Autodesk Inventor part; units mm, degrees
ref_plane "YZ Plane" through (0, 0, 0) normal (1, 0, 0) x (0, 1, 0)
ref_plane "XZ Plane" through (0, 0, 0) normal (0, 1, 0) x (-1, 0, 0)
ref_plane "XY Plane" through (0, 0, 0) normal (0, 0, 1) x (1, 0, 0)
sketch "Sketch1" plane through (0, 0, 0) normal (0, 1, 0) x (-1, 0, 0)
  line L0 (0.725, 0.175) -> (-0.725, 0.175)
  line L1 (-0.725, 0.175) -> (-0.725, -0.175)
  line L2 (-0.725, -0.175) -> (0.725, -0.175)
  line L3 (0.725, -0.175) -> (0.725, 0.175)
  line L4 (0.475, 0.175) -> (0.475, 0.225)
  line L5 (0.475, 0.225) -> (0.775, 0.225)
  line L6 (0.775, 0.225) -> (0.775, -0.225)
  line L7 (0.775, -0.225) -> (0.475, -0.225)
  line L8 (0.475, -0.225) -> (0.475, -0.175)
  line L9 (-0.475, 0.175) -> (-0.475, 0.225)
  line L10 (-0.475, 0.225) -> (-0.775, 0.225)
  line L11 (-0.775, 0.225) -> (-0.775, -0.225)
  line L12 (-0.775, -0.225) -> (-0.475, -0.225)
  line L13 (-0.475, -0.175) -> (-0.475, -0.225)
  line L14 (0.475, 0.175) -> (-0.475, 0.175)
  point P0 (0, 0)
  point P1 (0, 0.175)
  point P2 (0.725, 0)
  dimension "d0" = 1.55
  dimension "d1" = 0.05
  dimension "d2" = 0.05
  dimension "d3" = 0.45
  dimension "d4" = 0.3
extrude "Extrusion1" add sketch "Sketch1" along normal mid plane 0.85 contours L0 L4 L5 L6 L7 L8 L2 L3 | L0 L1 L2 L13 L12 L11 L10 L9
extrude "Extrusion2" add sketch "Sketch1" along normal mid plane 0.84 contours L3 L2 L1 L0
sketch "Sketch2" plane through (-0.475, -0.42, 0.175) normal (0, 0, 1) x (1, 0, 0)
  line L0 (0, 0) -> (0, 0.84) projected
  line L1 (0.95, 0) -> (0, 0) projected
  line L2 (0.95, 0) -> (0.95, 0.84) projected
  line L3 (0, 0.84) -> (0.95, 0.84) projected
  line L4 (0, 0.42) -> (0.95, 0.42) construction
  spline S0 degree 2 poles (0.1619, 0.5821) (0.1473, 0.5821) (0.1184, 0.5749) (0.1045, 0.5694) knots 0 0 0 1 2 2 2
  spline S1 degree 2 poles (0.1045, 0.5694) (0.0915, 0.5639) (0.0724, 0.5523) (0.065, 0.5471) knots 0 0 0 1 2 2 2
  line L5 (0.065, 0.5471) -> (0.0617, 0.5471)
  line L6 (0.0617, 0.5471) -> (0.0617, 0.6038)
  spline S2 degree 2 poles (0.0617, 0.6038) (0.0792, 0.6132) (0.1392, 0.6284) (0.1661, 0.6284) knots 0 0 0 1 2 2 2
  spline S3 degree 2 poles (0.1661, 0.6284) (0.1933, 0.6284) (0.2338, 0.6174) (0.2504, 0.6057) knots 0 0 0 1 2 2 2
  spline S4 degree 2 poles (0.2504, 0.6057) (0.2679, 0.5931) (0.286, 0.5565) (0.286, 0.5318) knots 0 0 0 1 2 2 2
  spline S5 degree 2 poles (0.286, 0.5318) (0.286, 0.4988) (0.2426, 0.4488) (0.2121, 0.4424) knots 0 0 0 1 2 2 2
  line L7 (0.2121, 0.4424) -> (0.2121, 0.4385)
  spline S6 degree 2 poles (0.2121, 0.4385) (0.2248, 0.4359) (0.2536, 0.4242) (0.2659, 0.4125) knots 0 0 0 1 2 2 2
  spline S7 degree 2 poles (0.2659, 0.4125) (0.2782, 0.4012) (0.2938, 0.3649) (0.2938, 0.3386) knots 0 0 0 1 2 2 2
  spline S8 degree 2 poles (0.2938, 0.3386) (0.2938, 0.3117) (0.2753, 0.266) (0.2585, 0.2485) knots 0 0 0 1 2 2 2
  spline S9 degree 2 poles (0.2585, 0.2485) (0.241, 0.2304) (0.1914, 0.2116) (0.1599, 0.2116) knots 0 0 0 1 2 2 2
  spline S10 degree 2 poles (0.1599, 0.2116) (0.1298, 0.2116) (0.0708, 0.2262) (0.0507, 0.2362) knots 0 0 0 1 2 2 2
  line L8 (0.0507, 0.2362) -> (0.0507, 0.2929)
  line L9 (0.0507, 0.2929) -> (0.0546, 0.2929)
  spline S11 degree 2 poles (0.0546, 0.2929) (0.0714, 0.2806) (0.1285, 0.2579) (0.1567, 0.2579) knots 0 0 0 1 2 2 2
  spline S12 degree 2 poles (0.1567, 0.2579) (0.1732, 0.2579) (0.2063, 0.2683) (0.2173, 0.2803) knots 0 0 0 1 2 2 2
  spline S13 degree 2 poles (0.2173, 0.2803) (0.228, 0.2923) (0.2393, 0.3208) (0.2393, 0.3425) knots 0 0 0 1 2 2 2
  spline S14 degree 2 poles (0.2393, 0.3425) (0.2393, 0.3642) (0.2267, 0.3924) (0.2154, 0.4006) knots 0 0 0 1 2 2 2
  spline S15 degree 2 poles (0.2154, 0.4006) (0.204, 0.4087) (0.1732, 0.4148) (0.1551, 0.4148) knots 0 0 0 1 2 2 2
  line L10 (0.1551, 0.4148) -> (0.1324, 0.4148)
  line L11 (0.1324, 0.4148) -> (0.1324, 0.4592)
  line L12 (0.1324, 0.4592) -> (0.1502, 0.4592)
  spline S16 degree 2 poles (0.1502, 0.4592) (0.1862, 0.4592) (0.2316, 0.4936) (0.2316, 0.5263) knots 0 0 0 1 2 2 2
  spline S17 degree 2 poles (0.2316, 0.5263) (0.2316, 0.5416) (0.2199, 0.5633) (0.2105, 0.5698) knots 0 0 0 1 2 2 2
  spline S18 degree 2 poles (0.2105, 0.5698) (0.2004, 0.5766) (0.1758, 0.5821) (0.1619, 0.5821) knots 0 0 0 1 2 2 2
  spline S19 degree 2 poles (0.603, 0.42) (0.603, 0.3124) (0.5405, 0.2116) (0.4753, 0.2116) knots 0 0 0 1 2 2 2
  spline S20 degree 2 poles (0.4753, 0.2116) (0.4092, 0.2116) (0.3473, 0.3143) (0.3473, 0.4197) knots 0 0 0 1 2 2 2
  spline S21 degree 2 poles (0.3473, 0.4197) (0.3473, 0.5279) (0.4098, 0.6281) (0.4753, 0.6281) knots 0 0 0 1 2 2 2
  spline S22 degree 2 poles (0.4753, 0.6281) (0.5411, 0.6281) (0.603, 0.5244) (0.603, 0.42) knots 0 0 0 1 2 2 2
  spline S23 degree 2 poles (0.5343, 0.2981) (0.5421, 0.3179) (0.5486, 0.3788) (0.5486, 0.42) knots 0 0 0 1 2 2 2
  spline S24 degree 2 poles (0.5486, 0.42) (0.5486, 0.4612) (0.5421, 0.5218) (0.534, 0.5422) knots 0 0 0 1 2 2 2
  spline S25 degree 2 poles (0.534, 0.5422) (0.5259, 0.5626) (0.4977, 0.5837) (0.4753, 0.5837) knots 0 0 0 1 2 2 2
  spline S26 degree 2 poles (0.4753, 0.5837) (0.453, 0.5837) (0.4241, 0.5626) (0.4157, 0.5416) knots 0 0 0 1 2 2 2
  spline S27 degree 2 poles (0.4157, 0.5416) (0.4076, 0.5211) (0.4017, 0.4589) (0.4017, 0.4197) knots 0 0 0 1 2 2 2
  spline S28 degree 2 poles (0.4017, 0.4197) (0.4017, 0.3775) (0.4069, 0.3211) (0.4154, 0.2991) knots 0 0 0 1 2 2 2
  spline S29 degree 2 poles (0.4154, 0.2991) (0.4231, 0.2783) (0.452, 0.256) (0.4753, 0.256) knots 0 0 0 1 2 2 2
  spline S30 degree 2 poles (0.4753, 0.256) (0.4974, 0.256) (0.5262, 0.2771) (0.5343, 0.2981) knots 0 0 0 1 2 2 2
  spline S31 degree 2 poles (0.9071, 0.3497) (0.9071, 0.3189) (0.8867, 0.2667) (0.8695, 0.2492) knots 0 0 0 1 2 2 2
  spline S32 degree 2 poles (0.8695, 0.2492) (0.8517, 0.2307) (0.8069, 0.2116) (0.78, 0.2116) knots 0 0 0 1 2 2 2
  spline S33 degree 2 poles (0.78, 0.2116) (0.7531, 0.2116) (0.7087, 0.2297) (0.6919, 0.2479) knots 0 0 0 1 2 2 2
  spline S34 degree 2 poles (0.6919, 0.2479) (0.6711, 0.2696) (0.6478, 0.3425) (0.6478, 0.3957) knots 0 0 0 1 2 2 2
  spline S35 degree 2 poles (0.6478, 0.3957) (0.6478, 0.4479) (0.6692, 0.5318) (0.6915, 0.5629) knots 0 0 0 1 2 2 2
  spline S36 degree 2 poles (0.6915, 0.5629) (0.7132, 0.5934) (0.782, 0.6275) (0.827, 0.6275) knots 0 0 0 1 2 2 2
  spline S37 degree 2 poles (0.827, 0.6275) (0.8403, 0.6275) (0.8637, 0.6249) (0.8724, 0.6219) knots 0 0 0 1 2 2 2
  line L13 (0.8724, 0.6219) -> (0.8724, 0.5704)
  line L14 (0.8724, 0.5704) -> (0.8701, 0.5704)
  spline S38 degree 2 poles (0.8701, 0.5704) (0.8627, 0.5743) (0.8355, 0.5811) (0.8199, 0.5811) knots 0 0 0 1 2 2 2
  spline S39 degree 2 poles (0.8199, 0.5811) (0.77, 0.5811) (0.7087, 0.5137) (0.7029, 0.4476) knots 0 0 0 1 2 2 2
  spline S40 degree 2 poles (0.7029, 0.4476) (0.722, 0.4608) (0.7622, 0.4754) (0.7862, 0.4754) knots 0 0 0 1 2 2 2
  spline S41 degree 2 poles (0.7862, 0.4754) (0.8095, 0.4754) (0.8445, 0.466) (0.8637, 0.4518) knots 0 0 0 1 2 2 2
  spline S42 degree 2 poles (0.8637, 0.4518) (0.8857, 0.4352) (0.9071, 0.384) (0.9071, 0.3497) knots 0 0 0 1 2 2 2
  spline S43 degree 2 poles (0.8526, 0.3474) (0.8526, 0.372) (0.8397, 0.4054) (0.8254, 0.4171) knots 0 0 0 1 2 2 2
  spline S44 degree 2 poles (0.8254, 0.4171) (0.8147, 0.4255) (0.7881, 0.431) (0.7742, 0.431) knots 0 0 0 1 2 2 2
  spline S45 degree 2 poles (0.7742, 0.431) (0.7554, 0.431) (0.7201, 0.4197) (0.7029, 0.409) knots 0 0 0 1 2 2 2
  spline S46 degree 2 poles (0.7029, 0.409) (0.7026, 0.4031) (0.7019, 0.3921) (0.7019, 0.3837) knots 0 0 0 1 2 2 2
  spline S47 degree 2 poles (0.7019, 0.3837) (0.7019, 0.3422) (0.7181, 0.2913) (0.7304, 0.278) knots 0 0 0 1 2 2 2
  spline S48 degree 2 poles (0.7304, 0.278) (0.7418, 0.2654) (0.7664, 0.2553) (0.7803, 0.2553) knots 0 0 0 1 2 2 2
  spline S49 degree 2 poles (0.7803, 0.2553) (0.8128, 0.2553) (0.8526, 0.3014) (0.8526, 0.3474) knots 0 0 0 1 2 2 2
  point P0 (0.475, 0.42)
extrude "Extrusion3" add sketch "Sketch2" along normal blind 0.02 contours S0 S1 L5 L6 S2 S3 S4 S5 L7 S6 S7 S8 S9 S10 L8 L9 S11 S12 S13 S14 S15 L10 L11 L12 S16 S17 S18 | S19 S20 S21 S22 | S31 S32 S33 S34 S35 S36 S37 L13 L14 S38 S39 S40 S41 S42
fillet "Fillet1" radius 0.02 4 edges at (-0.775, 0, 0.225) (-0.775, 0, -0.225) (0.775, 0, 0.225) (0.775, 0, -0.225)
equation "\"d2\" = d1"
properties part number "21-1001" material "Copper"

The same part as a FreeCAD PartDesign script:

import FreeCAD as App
import Part
import Sketcher
Q = App.Units.Quantity


def edges_at(feature, points):
    """Names of the edges that pass closest to the given points."""
    edges = feature.Shape.Edges
    near = lambda p: min(range(len(edges)), key=lambda i: edges[i].distToShape(Part.Vertex(*p))[0])
    return sorted({f"Edge{near(p) + 1}" for p in points})

doc = App.newDocument("Part")
body = doc.addObject("PartDesign::Body", "Body")
body.AllowCompound = True

# Sketch on XZ plane
sketch1 = body.newObject("Sketcher::SketchObject", "Sketch")
sketch1.AttachmentSupport = (doc.getObject("XZ_Plane"), [""])
sketch1.MapMode = "FlatFace"
sketch1.addGeometry([
    Part.LineSegment(App.Vector(-0.47, 0.17, 0), App.Vector(-0.72, 0.17, 0)),  # 0
    Part.LineSegment(App.Vector(-0.72, 0.17, 0), App.Vector(-0.72, -0.17, 0)),  # 1
    Part.LineSegment(App.Vector(-0.72, -0.17, 0), App.Vector(-0.47, -0.17, 0)),  # 2
    Part.LineSegment(App.Vector(-0.47, -0.17, 0), App.Vector(-0.47, -0.23, 0)),  # 3
    Part.LineSegment(App.Vector(-0.47, -0.23, 0), App.Vector(-0.78, -0.23, 0)),  # 4
    Part.LineSegment(App.Vector(-0.78, -0.23, 0), App.Vector(-0.78, 0.23, 0)),  # 5
    Part.LineSegment(App.Vector(-0.78, 0.23, 0), App.Vector(-0.47, 0.23, 0)),  # 6
    Part.LineSegment(App.Vector(-0.47, 0.23, 0), App.Vector(-0.47, 0.17, 0)),  # 7
    Part.LineSegment(App.Vector(0.72, 0.17, 0), App.Vector(0.47, 0.17, 0)),  # 8
    Part.LineSegment(App.Vector(0.47, 0.17, 0), App.Vector(0.47, 0.23, 0)),  # 9
    Part.LineSegment(App.Vector(0.47, 0.23, 0), App.Vector(0.78, 0.23, 0)),  # 10
    Part.LineSegment(App.Vector(0.78, 0.23, 0), App.Vector(0.78, -0.23, 0)),  # 11
    Part.LineSegment(App.Vector(0.78, -0.23, 0), App.Vector(0.47, -0.23, 0)),  # 12
    Part.LineSegment(App.Vector(0.47, -0.23, 0), App.Vector(0.47, -0.17, 0)),  # 13
    Part.LineSegment(App.Vector(0.47, -0.17, 0), App.Vector(0.72, -0.17, 0)),  # 14
    Part.LineSegment(App.Vector(0.72, -0.17, 0), App.Vector(0.72, 0.17, 0)),  # 15
], False)
sketch1.addConstraint([
    Sketcher.Constraint("Coincident", 0, 2, 1, 1),
    Sketcher.Constraint("Coincident", 1, 2, 2, 1),
    Sketcher.Constraint("Coincident", 2, 2, 3, 1),
    Sketcher.Constraint("Coincident", 3, 2, 4, 1),
    Sketcher.Constraint("Coincident", 4, 2, 5, 1),
    Sketcher.Constraint("Coincident", 5, 2, 6, 1),
    Sketcher.Constraint("Coincident", 6, 2, 7, 1),
    Sketcher.Constraint("Coincident", 7, 2, 0, 1),
    Sketcher.Constraint("Coincident", 8, 2, 9, 1),
    Sketcher.Constraint("Coincident", 9, 2, 10, 1),
    Sketcher.Constraint("Coincident", 10, 2, 11, 1),
    Sketcher.Constraint("Coincident", 11, 2, 12, 1),
    Sketcher.Constraint("Coincident", 12, 2, 13, 1),
    Sketcher.Constraint("Coincident", 13, 2, 14, 1),
    Sketcher.Constraint("Coincident", 14, 2, 15, 1),
    Sketcher.Constraint("Coincident", 15, 2, 8, 1),
    Sketcher.Constraint("Horizontal", 0),
    Sketcher.Constraint("Vertical", 1),
    Sketcher.Constraint("Horizontal", 2),
    Sketcher.Constraint("Vertical", 3),
    Sketcher.Constraint("Horizontal", 4),
    Sketcher.Constraint("Vertical", 5),
    Sketcher.Constraint("Horizontal", 6),
    Sketcher.Constraint("Vertical", 7),
    Sketcher.Constraint("Horizontal", 8),
    Sketcher.Constraint("Vertical", 9),
    Sketcher.Constraint("Horizontal", 10),
    Sketcher.Constraint("Vertical", 11),
    Sketcher.Constraint("Horizontal", 12),
    Sketcher.Constraint("Vertical", 13),
    Sketcher.Constraint("Horizontal", 14),
    Sketcher.Constraint("Vertical", 15),
    Sketcher.Constraint("Symmetric", 2, 2, 8, 2, -1, 1),
    Sketcher.Constraint("Symmetric", 4, 2, 10, 2, -1, 1),
    Sketcher.Constraint("Symmetric", 6, 2, 12, 2, -1, 1),
    Sketcher.Constraint("Symmetric", 0, 2, 14, 2, -1, 1),
    Sketcher.Constraint("Symmetric", 7, 2, 8, 2, -2),
    Sketcher.Constraint("Horizontal", 6, 2, 9, 2),
    Sketcher.Constraint("DistanceX", 4, 2, 4, 1, Q("0.3 mm")),
    Sketcher.Constraint("DistanceY", 3, 2, 3, 1, Q("0.05 mm")),
    Sketcher.Constraint("DistanceY", 5, 1, 5, 2, Q("0.45 mm")),
    Sketcher.Constraint("DistanceX", 4, 2, 1, 2, Q("0.05 mm")),
    Sketcher.Constraint("DistanceX", 0, 2, 8, 2, Q("1.2 mm")),
])
pad1 = body.newObject("PartDesign::Pad", "Pad")
pad1.Profile = sketch1
pad1.Length = 0.85
pad1.Midplane = True

# Sketch on XZ plane
sketch2 = body.newObject("Sketcher::SketchObject", "Sketch001")
sketch2.AttachmentSupport = (doc.getObject("XZ_Plane"), [""])
sketch2.MapMode = "FlatFace"
sketch2.addGeometry([
    Part.LineSegment(App.Vector(-0.72, -0.17, 0), App.Vector(-0.72, 0.17, 0)),
    Part.LineSegment(App.Vector(-0.72, 0.17, 0), App.Vector(0.72, 0.17, 0)),
    Part.LineSegment(App.Vector(0.72, 0.17, 0), App.Vector(0.72, -0.17, 0)),
    Part.LineSegment(App.Vector(0.72, -0.17, 0), App.Vector(-0.72, -0.17, 0)),
], False)
sketch2.addConstraint([
    Sketcher.Constraint("Coincident", 0, 2, 1, 1),
    Sketcher.Constraint("Coincident", 1, 2, 2, 1),
    Sketcher.Constraint("Coincident", 2, 2, 3, 1),
    Sketcher.Constraint("Coincident", 3, 2, 0, 1),
    Sketcher.Constraint("Vertical", 0),
    Sketcher.Constraint("Horizontal", 1),
    Sketcher.Constraint("Vertical", 2),
    Sketcher.Constraint("Horizontal", 3),
    Sketcher.Constraint("Symmetric", 0, 2, 2, 2, -1, 1),
    Sketcher.Constraint("DistanceX", 1, 1, 1, 2, Q("1.45 mm")),
    Sketcher.Constraint("DistanceY", 0, 1, 0, 2, Q("0.35 mm")),
])
pad2 = body.newObject("PartDesign::Pad", "Pad001")
pad2.Profile = sketch2
pad2.Length = 0.84
pad2.Midplane = True

# Sketch on XY plane
sketch3 = body.newObject("Sketcher::SketchObject", "Sketch002")
sketch3.AttachmentSupport = (doc.getObject("XY_Plane"), [""])
sketch3.MapMode = "FlatFace"
sketch3.AttachmentOffset = App.Placement(App.Vector(0, 0, 0.175), App.Rotation())
sketch3.addGeometry([
    Part.BSplineCurve([App.Vector(-0.3131, 0.1621, 0), App.Vector(-0.3277, 0.1621, 0), App.Vector(-0.3566, 0.1549, 0), App.Vector(-0.3705, 0.1494, 0)], [3, 1, 3], [0, 1, 2], False, 2, [1, 1, 1, 1], False),  # 0
    Part.BSplineCurve([App.Vector(-0.2645, 0.1498, 0), App.Vector(-0.2746, 0.1566, 0), App.Vector(-0.2992, 0.1621, 0), App.Vector(-0.3131, 0.1621, 0)], [3, 1, 3], [0, 1, 2], False, 2, [1, 1, 1, 1], False),  # 1
    Part.BSplineCurve([App.Vector(-0.2434, 0.1063, 0), App.Vector(-0.2434, 0.1216, 0), App.Vector(-0.2551, 0.1433, 0), App.Vector(-0.2645, 0.1498, 0)], [3, 1, 3], [0, 1, 2], False, 2, [1, 1, 1, 1], False),  # 2
    Part.BSplineCurve([App.Vector(-0.3248, 0.0392, 0), App.Vector(-0.2888, 0.0392, 0), App.Vector(-0.2434, 0.0736, 0), App.Vector(-0.2434, 0.1063, 0)], [3, 1, 3], [0, 1, 2], False, 2, [1, 1, 1, 1], False),  # 3
    Part.LineSegment(App.Vector(-0.3248, 0.0392, 0), App.Vector(-0.3426, 0.0392, 0)),  # 4
    Part.LineSegment(App.Vector(-0.3426, 0.0392, 0), App.Vector(-0.3426, -0.0052, 0)),  # 5
    Part.LineSegment(App.Vector(-0.3426, -0.0052, 0), App.Vector(-0.3199, -0.0052, 0)),  # 6
    Part.BSplineCurve([App.Vector(-0.2596, -0.0194, 0), App.Vector(-0.271, -0.0113, 0), App.Vector(-0.3018, -0.0052, 0), App.Vector(-0.3199, -0.0052, 0)], [3, 1, 3], [0, 1, 2], False, 2, [1, 1, 1, 1], False),  # 7
    Part.BSplineCurve([App.Vector(-0.2357, -0.0775, 0), App.Vector(-0.2357, -0.0558, 0), App.Vector(-0.2483, -0.0276, 0), App.Vector(-0.2596, -0.0194, 0)], [3, 1, 3], [0, 1, 2], False, 2, [1, 1, 1, 1], False),  # 8
    Part.BSplineCurve([App.Vector(-0.2577, -0.1397, 0), App.Vector(-0.247, -0.1277, 0), App.Vector(-0.2357, -0.0992, 0), App.Vector(-0.2357, -0.0775, 0)], [3, 1, 3], [0, 1, 2], False, 2, [1, 1, 1, 1], False),  # 9
    Part.BSplineCurve([App.Vector(-0.3183, -0.1621, 0), App.Vector(-0.3018, -0.1621, 0), App.Vector(-0.2687, -0.1517, 0), App.Vector(-0.2577, -0.1397, 0)], [3, 1, 3], [0, 1, 2], False, 2, [1, 1, 1, 1], False),  # 10
    Part.BSplineCurve([App.Vector(-0.4204, -0.1271, 0), App.Vector(-0.4036, -0.1394, 0), App.Vector(-0.3465, -0.1621, 0), App.Vector(-0.3183, -0.1621, 0)], [3, 1, 3], [0, 1, 2], False, 2, [1, 1, 1, 1], False),  # 11
    Part.LineSegment(App.Vector(-0.4204, -0.1271, 0), App.Vector(-0.4243, -0.1271, 0)),  # 12
    Part.LineSegment(App.Vector(-0.4243, -0.1271, 0), App.Vector(-0.4243, -0.1838, 0)),  # 13
    Part.BSplineCurve([App.Vector(-0.3151, -0.2084, 0), App.Vector(-0.3452, -0.2084, 0), App.Vector(-0.4042, -0.1938, 0), App.Vector(-0.4243, -0.1838, 0)], [3, 1, 3], [0, 1, 2], False, 2, [1, 1, 1, 1], False),  # 14
    Part.BSplineCurve([App.Vector(-0.2165, -0.1715, 0), App.Vector(-0.234, -0.1896, 0), App.Vector(-0.2836, -0.2084, 0), App.Vector(-0.3151, -0.2084, 0)], [3, 1, 3], [0, 1, 2], False, 2, [1, 1, 1, 1], False),  # 15
    Part.BSplineCurve([App.Vector(-0.1812, -0.0814, 0), App.Vector(-0.1812, -0.1083, 0), App.Vector(-0.1997, -0.154, 0), App.Vector(-0.2165, -0.1715, 0)], [3, 1, 3], [0, 1, 2], False, 2, [1, 1, 1, 1], False),  # 16
    Part.BSplineCurve([App.Vector(-0.2091, -0.0075, 0), App.Vector(-0.1968, -0.0188, 0), App.Vector(-0.1812, -0.0551, 0), App.Vector(-0.1812, -0.0814, 0)], [3, 1, 3], [0, 1, 2], False, 2, [1, 1, 1, 1], False),  # 17
    Part.BSplineCurve([App.Vector(-0.2629, 0.0185, 0), App.Vector(-0.2502, 0.0159, 0), App.Vector(-0.2214, 0.0042, 0), App.Vector(-0.2091, -0.0075, 0)], [3, 1, 3], [0, 1, 2], False, 2, [1, 1, 1, 1], False),  # 18
    Part.LineSegment(App.Vector(-0.2629, 0.0185, 0), App.Vector(-0.2629, 0.0224, 0)),  # 19
    Part.BSplineCurve([App.Vector(-0.189, 0.1118, 0), App.Vector(-0.189, 0.0788, 0), App.Vector(-0.2324, 0.0288, 0), App.Vector(-0.2629, 0.0224, 0)], [3, 1, 3], [0, 1, 2], False, 2, [1, 1, 1, 1], False),  # 20
    Part.BSplineCurve([App.Vector(-0.2246, 0.1857, 0), App.Vector(-0.2071, 0.1731, 0), App.Vector(-0.189, 0.1365, 0), App.Vector(-0.189, 0.1118, 0)], [3, 1, 3], [0, 1, 2], False, 2, [1, 1, 1, 1], False),  # 21
    Part.BSplineCurve([App.Vector(-0.3089, 0.2084, 0), App.Vector(-0.2817, 0.2084, 0), App.Vector(-0.2412, 0.1974, 0), App.Vector(-0.2246, 0.1857, 0)], [3, 1, 3], [0, 1, 2], False, 2, [1, 1, 1, 1], False),  # 22
    Part.BSplineCurve([App.Vector(-0.4133, 0.1838, 0), App.Vector(-0.3958, 0.1932, 0), App.Vector(-0.3358, 0.2084, 0), App.Vector(-0.3089, 0.2084, 0)], [3, 1, 3], [0, 1, 2], False, 2, [1, 1, 1, 1], False),  # 23
    Part.LineSegment(App.Vector(-0.4133, 0.1838, 0), App.Vector(-0.4133, 0.1271, 0)),  # 24
    Part.LineSegment(App.Vector(-0.4133, 0.1271, 0), App.Vector(-0.41, 0.1271, 0)),  # 25
    Part.BSplineCurve([App.Vector(-0.3705, 0.1494, 0), App.Vector(-0.3835, 0.1439, 0), App.Vector(-0.4026, 0.1323, 0), App.Vector(-0.41, 0.1271, 0)], [3, 1, 3], [0, 1, 2], False, 2, [1, 1, 1, 1], False),  # 26
    Part.BSplineCurve([App.Vector(0.128, 0, 0), App.Vector(0.128, -0.1076, 0), App.Vector(0.0655, -0.2084, 0), App.Vector(0.0003, -0.2084, 0)], [3, 1, 3], [0, 1, 2], False, 2, [1, 1, 1, 1], False),  # 27
    Part.BSplineCurve([App.Vector(0.0003, 0.2081, 0), App.Vector(0.0661, 0.2081, 0), App.Vector(0.128, 0.1044, 0), App.Vector(0.128, 0, 0)], [3, 1, 3], [0, 1, 2], False, 2, [1, 1, 1, 1], False),  # 28
    Part.BSplineCurve([App.Vector(-0.1277, -0.0003, 0), App.Vector(-0.1277, 0.1079, 0), App.Vector(-0.0652, 0.2081, 0), App.Vector(0.0003, 0.2081, 0)], [3, 1, 3], [0, 1, 2], False, 2, [1, 1, 1, 1], False),  # 29
    Part.BSplineCurve([App.Vector(0.0003, -0.2084, 0), App.Vector(-0.0658, -0.2084, 0), App.Vector(-0.1277, -0.1057, 0), App.Vector(-0.1277, -0.0003, 0)], [3, 1, 3], [0, 1, 2], False, 2, [1, 1, 1, 1], False),  # 30
    Part.BSplineCurve([App.Vector(0.0593, -0.1219, 0), App.Vector(0.0671, -0.1021, 0), App.Vector(0.0736, -0.0412, 0), App.Vector(0.0736, 0, 0)], [3, 1, 3], [0, 1, 2], False, 2, [1, 1, 1, 1], False),  # 31
    Part.BSplineCurve([App.Vector(0.0003, -0.164, 0), App.Vector(0.0224, -0.164, 0), App.Vector(0.0512, -0.1429, 0), App.Vector(0.0593, -0.1219, 0)], [3, 1, 3], [0, 1, 2], False, 2, [1, 1, 1, 1], False),  # 32
    Part.BSplineCurve([App.Vector(-0.0596, -0.1209, 0), App.Vector(-0.0519, -0.1417, 0), App.Vector(-0.023, -0.164, 0), App.Vector(0.0003, -0.164, 0)], [3, 1, 3], [0, 1, 2], False, 2, [1, 1, 1, 1], False),  # 33
    Part.BSplineCurve([App.Vector(-0.0733, -0.0003, 0), App.Vector(-0.0733, -0.0425, 0), App.Vector(-0.0681, -0.0989, 0), App.Vector(-0.0596, -0.1209, 0)], [3, 1, 3], [0, 1, 2], False, 2, [1, 1, 1, 1], False),  # 34
    Part.BSplineCurve([App.Vector(-0.0593, 0.1216, 0), App.Vector(-0.0674, 0.1011, 0), App.Vector(-0.0733, 0.0389, 0), App.Vector(-0.0733, -0.0003, 0)], [3, 1, 3], [0, 1, 2], False, 2, [1, 1, 1, 1], False),  # 35
    Part.BSplineCurve([App.Vector(0.0003, 0.1637, 0), App.Vector(-0.022, 0.1637, 0), App.Vector(-0.0509, 0.1426, 0), App.Vector(-0.0593, 0.1216, 0)], [3, 1, 3], [0, 1, 2], False, 2, [1, 1, 1, 1], False),  # 36
    Part.BSplineCurve([App.Vector(0.059, 0.1222, 0), App.Vector(0.0509, 0.1426, 0), App.Vector(0.0227, 0.1637, 0), App.Vector(0.0003, 0.1637, 0)], [3, 1, 3], [0, 1, 2], False, 2, [1, 1, 1, 1], False),  # 37
    Part.BSplineCurve([App.Vector(0.0736, 0, 0), App.Vector(0.0736, 0.0412, 0), App.Vector(0.0671, 0.1018, 0), App.Vector(0.059, 0.1222, 0)], [3, 1, 3], [0, 1, 2], False, 2, [1, 1, 1, 1], False),  # 38
    Part.BSplineCurve([App.Vector(0.4321, -0.0703, 0), App.Vector(0.4321, -0.1011, 0), App.Vector(0.4117, -0.1533, 0), App.Vector(0.3945, -0.1708, 0)], [3, 1, 3], [0, 1, 2], False, 2, [1, 1, 1, 1], False),  # 39
    Part.BSplineCurve([App.Vector(0.3887, 0.0318, 0), App.Vector(0.4107, 0.0152, 0), App.Vector(0.4321, -0.036, 0), App.Vector(0.4321, -0.0703, 0)], [3, 1, 3], [0, 1, 2], False, 2, [1, 1, 1, 1], False),  # 40
    Part.BSplineCurve([App.Vector(0.3112, 0.0554, 0), App.Vector(0.3345, 0.0554, 0), App.Vector(0.3695, 0.046, 0), App.Vector(0.3887, 0.0318, 0)], [3, 1, 3], [0, 1, 2], False, 2, [1, 1, 1, 1], False),  # 41
    Part.BSplineCurve([App.Vector(0.2279, 0.0276, 0), App.Vector(0.247, 0.0408, 0), App.Vector(0.2872, 0.0554, 0), App.Vector(0.3112, 0.0554, 0)], [3, 1, 3], [0, 1, 2], False, 2, [1, 1, 1, 1], False),  # 42
    Part.BSplineCurve([App.Vector(0.3449, 0.1611, 0), App.Vector(0.295, 0.1611, 0), App.Vector(0.2337, 0.0937, 0), App.Vector(0.2279, 0.0276, 0)], [3, 1, 3], [0, 1, 2], False, 2, [1, 1, 1, 1], False),  # 43
    Part.BSplineCurve([App.Vector(0.3951, 0.1504, 0), App.Vector(0.3877, 0.1543, 0), App.Vector(0.3605, 0.1611, 0), App.Vector(0.3449, 0.1611, 0)], [3, 1, 3], [0, 1, 2], False, 2, [1, 1, 1, 1], False),  # 44
    Part.LineSegment(App.Vector(0.3951, 0.1504, 0), App.Vector(0.3974, 0.1504, 0)),  # 45
    Part.LineSegment(App.Vector(0.3974, 0.1504, 0), App.Vector(0.3974, 0.2019, 0)),  # 46
    Part.BSplineCurve([App.Vector(0.352, 0.2075, 0), App.Vector(0.3653, 0.2075, 0), App.Vector(0.3887, 0.2049, 0), App.Vector(0.3974, 0.2019, 0)], [3, 1, 3], [0, 1, 2], False, 2, [1, 1, 1, 1], False),  # 47
    Part.BSplineCurve([App.Vector(0.2165, 0.1429, 0), App.Vector(0.2382, 0.1734, 0), App.Vector(0.307, 0.2075, 0), App.Vector(0.352, 0.2075, 0)], [3, 1, 3], [0, 1, 2], False, 2, [1, 1, 1, 1], False),  # 48
    Part.BSplineCurve([App.Vector(0.1728, -0.0243, 0), App.Vector(0.1728, 0.0279, 0), App.Vector(0.1942, 0.1118, 0), App.Vector(0.2165, 0.1429, 0)], [3, 1, 3], [0, 1, 2], False, 2, [1, 1, 1, 1], False),  # 49
    Part.BSplineCurve([App.Vector(0.2169, -0.1721, 0), App.Vector(0.1961, -0.1504, 0), App.Vector(0.1728, -0.0775, 0), App.Vector(0.1728, -0.0243, 0)], [3, 1, 3], [0, 1, 2], False, 2, [1, 1, 1, 1], False),  # 50
    Part.BSplineCurve([App.Vector(0.305, -0.2084, 0), App.Vector(0.2781, -0.2084, 0), App.Vector(0.2337, -0.1903, 0), App.Vector(0.2169, -0.1721, 0)], [3, 1, 3], [0, 1, 2], False, 2, [1, 1, 1, 1], False),  # 51
    Part.BSplineCurve([App.Vector(0.3945, -0.1708, 0), App.Vector(0.3767, -0.1893, 0), App.Vector(0.3319, -0.2084, 0), App.Vector(0.305, -0.2084, 0)], [3, 1, 3], [0, 1, 2], False, 2, [1, 1, 1, 1], False),  # 52
    Part.BSplineCurve([App.Vector(0.3776, -0.0726, 0), App.Vector(0.3776, -0.048, 0), App.Vector(0.3647, -0.0146, 0), App.Vector(0.3504, -0.0029, 0)], [3, 1, 3], [0, 1, 2], False, 2, [1, 1, 1, 1], False),  # 53
    Part.BSplineCurve([App.Vector(0.3053, -0.1647, 0), App.Vector(0.3378, -0.1647, 0), App.Vector(0.3776, -0.1186, 0), App.Vector(0.3776, -0.0726, 0)], [3, 1, 3], [0, 1, 2], False, 2, [1, 1, 1, 1], False),  # 54
    Part.BSplineCurve([App.Vector(0.2554, -0.142, 0), App.Vector(0.2668, -0.1546, 0), App.Vector(0.2914, -0.1647, 0), App.Vector(0.3053, -0.1647, 0)], [3, 1, 3], [0, 1, 2], False, 2, [1, 1, 1, 1], False),  # 55
    Part.BSplineCurve([App.Vector(0.2269, -0.0363, 0), App.Vector(0.2269, -0.0778, 0), App.Vector(0.2431, -0.1287, 0), App.Vector(0.2554, -0.142, 0)], [3, 1, 3], [0, 1, 2], False, 2, [1, 1, 1, 1], False),  # 56
    Part.BSplineCurve([App.Vector(0.2279, -0.011, 0), App.Vector(0.2276, -0.0169, 0), App.Vector(0.2269, -0.0279, 0), App.Vector(0.2269, -0.0363, 0)], [3, 1, 3], [0, 1, 2], False, 2, [1, 1, 1, 1], False),  # 57
    Part.BSplineCurve([App.Vector(0.2992, 0.011, 0), App.Vector(0.2804, 0.011, 0), App.Vector(0.2451, -0.0003, 0), App.Vector(0.2279, -0.011, 0)], [3, 1, 3], [0, 1, 2], False, 2, [1, 1, 1, 1], False),  # 58
    Part.BSplineCurve([App.Vector(0.3504, -0.0029, 0), App.Vector(0.3397, 0.0055, 0), App.Vector(0.3131, 0.011, 0), App.Vector(0.2992, 0.011, 0)], [3, 1, 3], [0, 1, 2], False, 2, [1, 1, 1, 1], False),  # 59
], False)
sketch3.addConstraint([
    Sketcher.Constraint("Block", 0),
    Sketcher.Constraint("Block", 1),
    Sketcher.Constraint("Block", 2),
    Sketcher.Constraint("Block", 3),
    Sketcher.Constraint("Block", 7),
    Sketcher.Constraint("Block", 8),
    Sketcher.Constraint("Block", 9),
    Sketcher.Constraint("Block", 10),
    Sketcher.Constraint("Block", 11),
    Sketcher.Constraint("Block", 14),
    Sketcher.Constraint("Block", 15),
    Sketcher.Constraint("Block", 16),
    Sketcher.Constraint("Block", 17),
    Sketcher.Constraint("Block", 18),
    Sketcher.Constraint("Block", 20),
    Sketcher.Constraint("Block", 21),
    Sketcher.Constraint("Block", 22),
    Sketcher.Constraint("Block", 23),
    Sketcher.Constraint("Block", 26),
    Sketcher.Constraint("Block", 27),
    Sketcher.Constraint("Block", 28),
    Sketcher.Constraint("Block", 29),
    Sketcher.Constraint("Block", 30),
    Sketcher.Constraint("Block", 31),
    Sketcher.Constraint("Block", 32),
    Sketcher.Constraint("Block", 33),
    Sketcher.Constraint("Block", 34),
    Sketcher.Constraint("Block", 35),
    Sketcher.Constraint("Block", 36),
    Sketcher.Constraint("Block", 37),
    Sketcher.Constraint("Block", 38),
    Sketcher.Constraint("Block", 39),
    Sketcher.Constraint("Block", 40),
    Sketcher.Constraint("Block", 41),
    Sketcher.Constraint("Block", 42),
    Sketcher.Constraint("Block", 43),
    Sketcher.Constraint("Block", 44),
    Sketcher.Constraint("Block", 47),
    Sketcher.Constraint("Block", 48),
    Sketcher.Constraint("Block", 49),
    Sketcher.Constraint("Block", 50),
    Sketcher.Constraint("Block", 51),
    Sketcher.Constraint("Block", 52),
    Sketcher.Constraint("Block", 53),
    Sketcher.Constraint("Block", 54),
    Sketcher.Constraint("Block", 55),
    Sketcher.Constraint("Block", 56),
    Sketcher.Constraint("Block", 57),
    Sketcher.Constraint("Block", 58),
    Sketcher.Constraint("Block", 59),
    Sketcher.Constraint("Coincident", 3, 1, 4, 1),
    Sketcher.Constraint("Coincident", 4, 2, 5, 1),
    Sketcher.Constraint("Coincident", 5, 2, 6, 1),
    Sketcher.Constraint("Coincident", 6, 2, 7, 2),
    Sketcher.Constraint("Coincident", 11, 1, 12, 1),
    Sketcher.Constraint("Coincident", 12, 2, 13, 1),
    Sketcher.Constraint("Coincident", 13, 2, 14, 2),
    Sketcher.Constraint("Coincident", 18, 1, 19, 1),
    Sketcher.Constraint("Coincident", 19, 2, 20, 2),
    Sketcher.Constraint("Coincident", 23, 1, 24, 1),
    Sketcher.Constraint("Coincident", 24, 2, 25, 1),
    Sketcher.Constraint("Coincident", 25, 2, 26, 2),
    Sketcher.Constraint("Coincident", 44, 1, 45, 1),
    Sketcher.Constraint("Coincident", 45, 2, 46, 1),
    Sketcher.Constraint("Coincident", 46, 2, 47, 2),
    Sketcher.Constraint("Horizontal", 4),
    Sketcher.Constraint("Vertical", 5),
    Sketcher.Constraint("Horizontal", 6),
    Sketcher.Constraint("Horizontal", 12),
    Sketcher.Constraint("Vertical", 13),
    Sketcher.Constraint("Vertical", 24),
    Sketcher.Constraint("Horizontal", 25),
    Sketcher.Constraint("Horizontal", 45),
    Sketcher.Constraint("Vertical", 46),
    Sketcher.Constraint("DistanceX", 4, 2, 45, 2, Q("0.74 mm")),
])
pad3 = body.newObject("PartDesign::Pad", "Pad002")
pad3.Profile = sketch3
pad3.Length = 0.02
doc.recompute()

fillet = body.newObject("PartDesign::Fillet", "Fillet")
fillet.Base = (pad3, edges_at(pad3, [
    (-0.775, 0, 0.225),
    (-0.775, 0, -0.225),
    (0.775, 0, 0.225),
    (0.775, 0, -0.225),
]))
fillet.Radius = 0.02

doc.recompute()
